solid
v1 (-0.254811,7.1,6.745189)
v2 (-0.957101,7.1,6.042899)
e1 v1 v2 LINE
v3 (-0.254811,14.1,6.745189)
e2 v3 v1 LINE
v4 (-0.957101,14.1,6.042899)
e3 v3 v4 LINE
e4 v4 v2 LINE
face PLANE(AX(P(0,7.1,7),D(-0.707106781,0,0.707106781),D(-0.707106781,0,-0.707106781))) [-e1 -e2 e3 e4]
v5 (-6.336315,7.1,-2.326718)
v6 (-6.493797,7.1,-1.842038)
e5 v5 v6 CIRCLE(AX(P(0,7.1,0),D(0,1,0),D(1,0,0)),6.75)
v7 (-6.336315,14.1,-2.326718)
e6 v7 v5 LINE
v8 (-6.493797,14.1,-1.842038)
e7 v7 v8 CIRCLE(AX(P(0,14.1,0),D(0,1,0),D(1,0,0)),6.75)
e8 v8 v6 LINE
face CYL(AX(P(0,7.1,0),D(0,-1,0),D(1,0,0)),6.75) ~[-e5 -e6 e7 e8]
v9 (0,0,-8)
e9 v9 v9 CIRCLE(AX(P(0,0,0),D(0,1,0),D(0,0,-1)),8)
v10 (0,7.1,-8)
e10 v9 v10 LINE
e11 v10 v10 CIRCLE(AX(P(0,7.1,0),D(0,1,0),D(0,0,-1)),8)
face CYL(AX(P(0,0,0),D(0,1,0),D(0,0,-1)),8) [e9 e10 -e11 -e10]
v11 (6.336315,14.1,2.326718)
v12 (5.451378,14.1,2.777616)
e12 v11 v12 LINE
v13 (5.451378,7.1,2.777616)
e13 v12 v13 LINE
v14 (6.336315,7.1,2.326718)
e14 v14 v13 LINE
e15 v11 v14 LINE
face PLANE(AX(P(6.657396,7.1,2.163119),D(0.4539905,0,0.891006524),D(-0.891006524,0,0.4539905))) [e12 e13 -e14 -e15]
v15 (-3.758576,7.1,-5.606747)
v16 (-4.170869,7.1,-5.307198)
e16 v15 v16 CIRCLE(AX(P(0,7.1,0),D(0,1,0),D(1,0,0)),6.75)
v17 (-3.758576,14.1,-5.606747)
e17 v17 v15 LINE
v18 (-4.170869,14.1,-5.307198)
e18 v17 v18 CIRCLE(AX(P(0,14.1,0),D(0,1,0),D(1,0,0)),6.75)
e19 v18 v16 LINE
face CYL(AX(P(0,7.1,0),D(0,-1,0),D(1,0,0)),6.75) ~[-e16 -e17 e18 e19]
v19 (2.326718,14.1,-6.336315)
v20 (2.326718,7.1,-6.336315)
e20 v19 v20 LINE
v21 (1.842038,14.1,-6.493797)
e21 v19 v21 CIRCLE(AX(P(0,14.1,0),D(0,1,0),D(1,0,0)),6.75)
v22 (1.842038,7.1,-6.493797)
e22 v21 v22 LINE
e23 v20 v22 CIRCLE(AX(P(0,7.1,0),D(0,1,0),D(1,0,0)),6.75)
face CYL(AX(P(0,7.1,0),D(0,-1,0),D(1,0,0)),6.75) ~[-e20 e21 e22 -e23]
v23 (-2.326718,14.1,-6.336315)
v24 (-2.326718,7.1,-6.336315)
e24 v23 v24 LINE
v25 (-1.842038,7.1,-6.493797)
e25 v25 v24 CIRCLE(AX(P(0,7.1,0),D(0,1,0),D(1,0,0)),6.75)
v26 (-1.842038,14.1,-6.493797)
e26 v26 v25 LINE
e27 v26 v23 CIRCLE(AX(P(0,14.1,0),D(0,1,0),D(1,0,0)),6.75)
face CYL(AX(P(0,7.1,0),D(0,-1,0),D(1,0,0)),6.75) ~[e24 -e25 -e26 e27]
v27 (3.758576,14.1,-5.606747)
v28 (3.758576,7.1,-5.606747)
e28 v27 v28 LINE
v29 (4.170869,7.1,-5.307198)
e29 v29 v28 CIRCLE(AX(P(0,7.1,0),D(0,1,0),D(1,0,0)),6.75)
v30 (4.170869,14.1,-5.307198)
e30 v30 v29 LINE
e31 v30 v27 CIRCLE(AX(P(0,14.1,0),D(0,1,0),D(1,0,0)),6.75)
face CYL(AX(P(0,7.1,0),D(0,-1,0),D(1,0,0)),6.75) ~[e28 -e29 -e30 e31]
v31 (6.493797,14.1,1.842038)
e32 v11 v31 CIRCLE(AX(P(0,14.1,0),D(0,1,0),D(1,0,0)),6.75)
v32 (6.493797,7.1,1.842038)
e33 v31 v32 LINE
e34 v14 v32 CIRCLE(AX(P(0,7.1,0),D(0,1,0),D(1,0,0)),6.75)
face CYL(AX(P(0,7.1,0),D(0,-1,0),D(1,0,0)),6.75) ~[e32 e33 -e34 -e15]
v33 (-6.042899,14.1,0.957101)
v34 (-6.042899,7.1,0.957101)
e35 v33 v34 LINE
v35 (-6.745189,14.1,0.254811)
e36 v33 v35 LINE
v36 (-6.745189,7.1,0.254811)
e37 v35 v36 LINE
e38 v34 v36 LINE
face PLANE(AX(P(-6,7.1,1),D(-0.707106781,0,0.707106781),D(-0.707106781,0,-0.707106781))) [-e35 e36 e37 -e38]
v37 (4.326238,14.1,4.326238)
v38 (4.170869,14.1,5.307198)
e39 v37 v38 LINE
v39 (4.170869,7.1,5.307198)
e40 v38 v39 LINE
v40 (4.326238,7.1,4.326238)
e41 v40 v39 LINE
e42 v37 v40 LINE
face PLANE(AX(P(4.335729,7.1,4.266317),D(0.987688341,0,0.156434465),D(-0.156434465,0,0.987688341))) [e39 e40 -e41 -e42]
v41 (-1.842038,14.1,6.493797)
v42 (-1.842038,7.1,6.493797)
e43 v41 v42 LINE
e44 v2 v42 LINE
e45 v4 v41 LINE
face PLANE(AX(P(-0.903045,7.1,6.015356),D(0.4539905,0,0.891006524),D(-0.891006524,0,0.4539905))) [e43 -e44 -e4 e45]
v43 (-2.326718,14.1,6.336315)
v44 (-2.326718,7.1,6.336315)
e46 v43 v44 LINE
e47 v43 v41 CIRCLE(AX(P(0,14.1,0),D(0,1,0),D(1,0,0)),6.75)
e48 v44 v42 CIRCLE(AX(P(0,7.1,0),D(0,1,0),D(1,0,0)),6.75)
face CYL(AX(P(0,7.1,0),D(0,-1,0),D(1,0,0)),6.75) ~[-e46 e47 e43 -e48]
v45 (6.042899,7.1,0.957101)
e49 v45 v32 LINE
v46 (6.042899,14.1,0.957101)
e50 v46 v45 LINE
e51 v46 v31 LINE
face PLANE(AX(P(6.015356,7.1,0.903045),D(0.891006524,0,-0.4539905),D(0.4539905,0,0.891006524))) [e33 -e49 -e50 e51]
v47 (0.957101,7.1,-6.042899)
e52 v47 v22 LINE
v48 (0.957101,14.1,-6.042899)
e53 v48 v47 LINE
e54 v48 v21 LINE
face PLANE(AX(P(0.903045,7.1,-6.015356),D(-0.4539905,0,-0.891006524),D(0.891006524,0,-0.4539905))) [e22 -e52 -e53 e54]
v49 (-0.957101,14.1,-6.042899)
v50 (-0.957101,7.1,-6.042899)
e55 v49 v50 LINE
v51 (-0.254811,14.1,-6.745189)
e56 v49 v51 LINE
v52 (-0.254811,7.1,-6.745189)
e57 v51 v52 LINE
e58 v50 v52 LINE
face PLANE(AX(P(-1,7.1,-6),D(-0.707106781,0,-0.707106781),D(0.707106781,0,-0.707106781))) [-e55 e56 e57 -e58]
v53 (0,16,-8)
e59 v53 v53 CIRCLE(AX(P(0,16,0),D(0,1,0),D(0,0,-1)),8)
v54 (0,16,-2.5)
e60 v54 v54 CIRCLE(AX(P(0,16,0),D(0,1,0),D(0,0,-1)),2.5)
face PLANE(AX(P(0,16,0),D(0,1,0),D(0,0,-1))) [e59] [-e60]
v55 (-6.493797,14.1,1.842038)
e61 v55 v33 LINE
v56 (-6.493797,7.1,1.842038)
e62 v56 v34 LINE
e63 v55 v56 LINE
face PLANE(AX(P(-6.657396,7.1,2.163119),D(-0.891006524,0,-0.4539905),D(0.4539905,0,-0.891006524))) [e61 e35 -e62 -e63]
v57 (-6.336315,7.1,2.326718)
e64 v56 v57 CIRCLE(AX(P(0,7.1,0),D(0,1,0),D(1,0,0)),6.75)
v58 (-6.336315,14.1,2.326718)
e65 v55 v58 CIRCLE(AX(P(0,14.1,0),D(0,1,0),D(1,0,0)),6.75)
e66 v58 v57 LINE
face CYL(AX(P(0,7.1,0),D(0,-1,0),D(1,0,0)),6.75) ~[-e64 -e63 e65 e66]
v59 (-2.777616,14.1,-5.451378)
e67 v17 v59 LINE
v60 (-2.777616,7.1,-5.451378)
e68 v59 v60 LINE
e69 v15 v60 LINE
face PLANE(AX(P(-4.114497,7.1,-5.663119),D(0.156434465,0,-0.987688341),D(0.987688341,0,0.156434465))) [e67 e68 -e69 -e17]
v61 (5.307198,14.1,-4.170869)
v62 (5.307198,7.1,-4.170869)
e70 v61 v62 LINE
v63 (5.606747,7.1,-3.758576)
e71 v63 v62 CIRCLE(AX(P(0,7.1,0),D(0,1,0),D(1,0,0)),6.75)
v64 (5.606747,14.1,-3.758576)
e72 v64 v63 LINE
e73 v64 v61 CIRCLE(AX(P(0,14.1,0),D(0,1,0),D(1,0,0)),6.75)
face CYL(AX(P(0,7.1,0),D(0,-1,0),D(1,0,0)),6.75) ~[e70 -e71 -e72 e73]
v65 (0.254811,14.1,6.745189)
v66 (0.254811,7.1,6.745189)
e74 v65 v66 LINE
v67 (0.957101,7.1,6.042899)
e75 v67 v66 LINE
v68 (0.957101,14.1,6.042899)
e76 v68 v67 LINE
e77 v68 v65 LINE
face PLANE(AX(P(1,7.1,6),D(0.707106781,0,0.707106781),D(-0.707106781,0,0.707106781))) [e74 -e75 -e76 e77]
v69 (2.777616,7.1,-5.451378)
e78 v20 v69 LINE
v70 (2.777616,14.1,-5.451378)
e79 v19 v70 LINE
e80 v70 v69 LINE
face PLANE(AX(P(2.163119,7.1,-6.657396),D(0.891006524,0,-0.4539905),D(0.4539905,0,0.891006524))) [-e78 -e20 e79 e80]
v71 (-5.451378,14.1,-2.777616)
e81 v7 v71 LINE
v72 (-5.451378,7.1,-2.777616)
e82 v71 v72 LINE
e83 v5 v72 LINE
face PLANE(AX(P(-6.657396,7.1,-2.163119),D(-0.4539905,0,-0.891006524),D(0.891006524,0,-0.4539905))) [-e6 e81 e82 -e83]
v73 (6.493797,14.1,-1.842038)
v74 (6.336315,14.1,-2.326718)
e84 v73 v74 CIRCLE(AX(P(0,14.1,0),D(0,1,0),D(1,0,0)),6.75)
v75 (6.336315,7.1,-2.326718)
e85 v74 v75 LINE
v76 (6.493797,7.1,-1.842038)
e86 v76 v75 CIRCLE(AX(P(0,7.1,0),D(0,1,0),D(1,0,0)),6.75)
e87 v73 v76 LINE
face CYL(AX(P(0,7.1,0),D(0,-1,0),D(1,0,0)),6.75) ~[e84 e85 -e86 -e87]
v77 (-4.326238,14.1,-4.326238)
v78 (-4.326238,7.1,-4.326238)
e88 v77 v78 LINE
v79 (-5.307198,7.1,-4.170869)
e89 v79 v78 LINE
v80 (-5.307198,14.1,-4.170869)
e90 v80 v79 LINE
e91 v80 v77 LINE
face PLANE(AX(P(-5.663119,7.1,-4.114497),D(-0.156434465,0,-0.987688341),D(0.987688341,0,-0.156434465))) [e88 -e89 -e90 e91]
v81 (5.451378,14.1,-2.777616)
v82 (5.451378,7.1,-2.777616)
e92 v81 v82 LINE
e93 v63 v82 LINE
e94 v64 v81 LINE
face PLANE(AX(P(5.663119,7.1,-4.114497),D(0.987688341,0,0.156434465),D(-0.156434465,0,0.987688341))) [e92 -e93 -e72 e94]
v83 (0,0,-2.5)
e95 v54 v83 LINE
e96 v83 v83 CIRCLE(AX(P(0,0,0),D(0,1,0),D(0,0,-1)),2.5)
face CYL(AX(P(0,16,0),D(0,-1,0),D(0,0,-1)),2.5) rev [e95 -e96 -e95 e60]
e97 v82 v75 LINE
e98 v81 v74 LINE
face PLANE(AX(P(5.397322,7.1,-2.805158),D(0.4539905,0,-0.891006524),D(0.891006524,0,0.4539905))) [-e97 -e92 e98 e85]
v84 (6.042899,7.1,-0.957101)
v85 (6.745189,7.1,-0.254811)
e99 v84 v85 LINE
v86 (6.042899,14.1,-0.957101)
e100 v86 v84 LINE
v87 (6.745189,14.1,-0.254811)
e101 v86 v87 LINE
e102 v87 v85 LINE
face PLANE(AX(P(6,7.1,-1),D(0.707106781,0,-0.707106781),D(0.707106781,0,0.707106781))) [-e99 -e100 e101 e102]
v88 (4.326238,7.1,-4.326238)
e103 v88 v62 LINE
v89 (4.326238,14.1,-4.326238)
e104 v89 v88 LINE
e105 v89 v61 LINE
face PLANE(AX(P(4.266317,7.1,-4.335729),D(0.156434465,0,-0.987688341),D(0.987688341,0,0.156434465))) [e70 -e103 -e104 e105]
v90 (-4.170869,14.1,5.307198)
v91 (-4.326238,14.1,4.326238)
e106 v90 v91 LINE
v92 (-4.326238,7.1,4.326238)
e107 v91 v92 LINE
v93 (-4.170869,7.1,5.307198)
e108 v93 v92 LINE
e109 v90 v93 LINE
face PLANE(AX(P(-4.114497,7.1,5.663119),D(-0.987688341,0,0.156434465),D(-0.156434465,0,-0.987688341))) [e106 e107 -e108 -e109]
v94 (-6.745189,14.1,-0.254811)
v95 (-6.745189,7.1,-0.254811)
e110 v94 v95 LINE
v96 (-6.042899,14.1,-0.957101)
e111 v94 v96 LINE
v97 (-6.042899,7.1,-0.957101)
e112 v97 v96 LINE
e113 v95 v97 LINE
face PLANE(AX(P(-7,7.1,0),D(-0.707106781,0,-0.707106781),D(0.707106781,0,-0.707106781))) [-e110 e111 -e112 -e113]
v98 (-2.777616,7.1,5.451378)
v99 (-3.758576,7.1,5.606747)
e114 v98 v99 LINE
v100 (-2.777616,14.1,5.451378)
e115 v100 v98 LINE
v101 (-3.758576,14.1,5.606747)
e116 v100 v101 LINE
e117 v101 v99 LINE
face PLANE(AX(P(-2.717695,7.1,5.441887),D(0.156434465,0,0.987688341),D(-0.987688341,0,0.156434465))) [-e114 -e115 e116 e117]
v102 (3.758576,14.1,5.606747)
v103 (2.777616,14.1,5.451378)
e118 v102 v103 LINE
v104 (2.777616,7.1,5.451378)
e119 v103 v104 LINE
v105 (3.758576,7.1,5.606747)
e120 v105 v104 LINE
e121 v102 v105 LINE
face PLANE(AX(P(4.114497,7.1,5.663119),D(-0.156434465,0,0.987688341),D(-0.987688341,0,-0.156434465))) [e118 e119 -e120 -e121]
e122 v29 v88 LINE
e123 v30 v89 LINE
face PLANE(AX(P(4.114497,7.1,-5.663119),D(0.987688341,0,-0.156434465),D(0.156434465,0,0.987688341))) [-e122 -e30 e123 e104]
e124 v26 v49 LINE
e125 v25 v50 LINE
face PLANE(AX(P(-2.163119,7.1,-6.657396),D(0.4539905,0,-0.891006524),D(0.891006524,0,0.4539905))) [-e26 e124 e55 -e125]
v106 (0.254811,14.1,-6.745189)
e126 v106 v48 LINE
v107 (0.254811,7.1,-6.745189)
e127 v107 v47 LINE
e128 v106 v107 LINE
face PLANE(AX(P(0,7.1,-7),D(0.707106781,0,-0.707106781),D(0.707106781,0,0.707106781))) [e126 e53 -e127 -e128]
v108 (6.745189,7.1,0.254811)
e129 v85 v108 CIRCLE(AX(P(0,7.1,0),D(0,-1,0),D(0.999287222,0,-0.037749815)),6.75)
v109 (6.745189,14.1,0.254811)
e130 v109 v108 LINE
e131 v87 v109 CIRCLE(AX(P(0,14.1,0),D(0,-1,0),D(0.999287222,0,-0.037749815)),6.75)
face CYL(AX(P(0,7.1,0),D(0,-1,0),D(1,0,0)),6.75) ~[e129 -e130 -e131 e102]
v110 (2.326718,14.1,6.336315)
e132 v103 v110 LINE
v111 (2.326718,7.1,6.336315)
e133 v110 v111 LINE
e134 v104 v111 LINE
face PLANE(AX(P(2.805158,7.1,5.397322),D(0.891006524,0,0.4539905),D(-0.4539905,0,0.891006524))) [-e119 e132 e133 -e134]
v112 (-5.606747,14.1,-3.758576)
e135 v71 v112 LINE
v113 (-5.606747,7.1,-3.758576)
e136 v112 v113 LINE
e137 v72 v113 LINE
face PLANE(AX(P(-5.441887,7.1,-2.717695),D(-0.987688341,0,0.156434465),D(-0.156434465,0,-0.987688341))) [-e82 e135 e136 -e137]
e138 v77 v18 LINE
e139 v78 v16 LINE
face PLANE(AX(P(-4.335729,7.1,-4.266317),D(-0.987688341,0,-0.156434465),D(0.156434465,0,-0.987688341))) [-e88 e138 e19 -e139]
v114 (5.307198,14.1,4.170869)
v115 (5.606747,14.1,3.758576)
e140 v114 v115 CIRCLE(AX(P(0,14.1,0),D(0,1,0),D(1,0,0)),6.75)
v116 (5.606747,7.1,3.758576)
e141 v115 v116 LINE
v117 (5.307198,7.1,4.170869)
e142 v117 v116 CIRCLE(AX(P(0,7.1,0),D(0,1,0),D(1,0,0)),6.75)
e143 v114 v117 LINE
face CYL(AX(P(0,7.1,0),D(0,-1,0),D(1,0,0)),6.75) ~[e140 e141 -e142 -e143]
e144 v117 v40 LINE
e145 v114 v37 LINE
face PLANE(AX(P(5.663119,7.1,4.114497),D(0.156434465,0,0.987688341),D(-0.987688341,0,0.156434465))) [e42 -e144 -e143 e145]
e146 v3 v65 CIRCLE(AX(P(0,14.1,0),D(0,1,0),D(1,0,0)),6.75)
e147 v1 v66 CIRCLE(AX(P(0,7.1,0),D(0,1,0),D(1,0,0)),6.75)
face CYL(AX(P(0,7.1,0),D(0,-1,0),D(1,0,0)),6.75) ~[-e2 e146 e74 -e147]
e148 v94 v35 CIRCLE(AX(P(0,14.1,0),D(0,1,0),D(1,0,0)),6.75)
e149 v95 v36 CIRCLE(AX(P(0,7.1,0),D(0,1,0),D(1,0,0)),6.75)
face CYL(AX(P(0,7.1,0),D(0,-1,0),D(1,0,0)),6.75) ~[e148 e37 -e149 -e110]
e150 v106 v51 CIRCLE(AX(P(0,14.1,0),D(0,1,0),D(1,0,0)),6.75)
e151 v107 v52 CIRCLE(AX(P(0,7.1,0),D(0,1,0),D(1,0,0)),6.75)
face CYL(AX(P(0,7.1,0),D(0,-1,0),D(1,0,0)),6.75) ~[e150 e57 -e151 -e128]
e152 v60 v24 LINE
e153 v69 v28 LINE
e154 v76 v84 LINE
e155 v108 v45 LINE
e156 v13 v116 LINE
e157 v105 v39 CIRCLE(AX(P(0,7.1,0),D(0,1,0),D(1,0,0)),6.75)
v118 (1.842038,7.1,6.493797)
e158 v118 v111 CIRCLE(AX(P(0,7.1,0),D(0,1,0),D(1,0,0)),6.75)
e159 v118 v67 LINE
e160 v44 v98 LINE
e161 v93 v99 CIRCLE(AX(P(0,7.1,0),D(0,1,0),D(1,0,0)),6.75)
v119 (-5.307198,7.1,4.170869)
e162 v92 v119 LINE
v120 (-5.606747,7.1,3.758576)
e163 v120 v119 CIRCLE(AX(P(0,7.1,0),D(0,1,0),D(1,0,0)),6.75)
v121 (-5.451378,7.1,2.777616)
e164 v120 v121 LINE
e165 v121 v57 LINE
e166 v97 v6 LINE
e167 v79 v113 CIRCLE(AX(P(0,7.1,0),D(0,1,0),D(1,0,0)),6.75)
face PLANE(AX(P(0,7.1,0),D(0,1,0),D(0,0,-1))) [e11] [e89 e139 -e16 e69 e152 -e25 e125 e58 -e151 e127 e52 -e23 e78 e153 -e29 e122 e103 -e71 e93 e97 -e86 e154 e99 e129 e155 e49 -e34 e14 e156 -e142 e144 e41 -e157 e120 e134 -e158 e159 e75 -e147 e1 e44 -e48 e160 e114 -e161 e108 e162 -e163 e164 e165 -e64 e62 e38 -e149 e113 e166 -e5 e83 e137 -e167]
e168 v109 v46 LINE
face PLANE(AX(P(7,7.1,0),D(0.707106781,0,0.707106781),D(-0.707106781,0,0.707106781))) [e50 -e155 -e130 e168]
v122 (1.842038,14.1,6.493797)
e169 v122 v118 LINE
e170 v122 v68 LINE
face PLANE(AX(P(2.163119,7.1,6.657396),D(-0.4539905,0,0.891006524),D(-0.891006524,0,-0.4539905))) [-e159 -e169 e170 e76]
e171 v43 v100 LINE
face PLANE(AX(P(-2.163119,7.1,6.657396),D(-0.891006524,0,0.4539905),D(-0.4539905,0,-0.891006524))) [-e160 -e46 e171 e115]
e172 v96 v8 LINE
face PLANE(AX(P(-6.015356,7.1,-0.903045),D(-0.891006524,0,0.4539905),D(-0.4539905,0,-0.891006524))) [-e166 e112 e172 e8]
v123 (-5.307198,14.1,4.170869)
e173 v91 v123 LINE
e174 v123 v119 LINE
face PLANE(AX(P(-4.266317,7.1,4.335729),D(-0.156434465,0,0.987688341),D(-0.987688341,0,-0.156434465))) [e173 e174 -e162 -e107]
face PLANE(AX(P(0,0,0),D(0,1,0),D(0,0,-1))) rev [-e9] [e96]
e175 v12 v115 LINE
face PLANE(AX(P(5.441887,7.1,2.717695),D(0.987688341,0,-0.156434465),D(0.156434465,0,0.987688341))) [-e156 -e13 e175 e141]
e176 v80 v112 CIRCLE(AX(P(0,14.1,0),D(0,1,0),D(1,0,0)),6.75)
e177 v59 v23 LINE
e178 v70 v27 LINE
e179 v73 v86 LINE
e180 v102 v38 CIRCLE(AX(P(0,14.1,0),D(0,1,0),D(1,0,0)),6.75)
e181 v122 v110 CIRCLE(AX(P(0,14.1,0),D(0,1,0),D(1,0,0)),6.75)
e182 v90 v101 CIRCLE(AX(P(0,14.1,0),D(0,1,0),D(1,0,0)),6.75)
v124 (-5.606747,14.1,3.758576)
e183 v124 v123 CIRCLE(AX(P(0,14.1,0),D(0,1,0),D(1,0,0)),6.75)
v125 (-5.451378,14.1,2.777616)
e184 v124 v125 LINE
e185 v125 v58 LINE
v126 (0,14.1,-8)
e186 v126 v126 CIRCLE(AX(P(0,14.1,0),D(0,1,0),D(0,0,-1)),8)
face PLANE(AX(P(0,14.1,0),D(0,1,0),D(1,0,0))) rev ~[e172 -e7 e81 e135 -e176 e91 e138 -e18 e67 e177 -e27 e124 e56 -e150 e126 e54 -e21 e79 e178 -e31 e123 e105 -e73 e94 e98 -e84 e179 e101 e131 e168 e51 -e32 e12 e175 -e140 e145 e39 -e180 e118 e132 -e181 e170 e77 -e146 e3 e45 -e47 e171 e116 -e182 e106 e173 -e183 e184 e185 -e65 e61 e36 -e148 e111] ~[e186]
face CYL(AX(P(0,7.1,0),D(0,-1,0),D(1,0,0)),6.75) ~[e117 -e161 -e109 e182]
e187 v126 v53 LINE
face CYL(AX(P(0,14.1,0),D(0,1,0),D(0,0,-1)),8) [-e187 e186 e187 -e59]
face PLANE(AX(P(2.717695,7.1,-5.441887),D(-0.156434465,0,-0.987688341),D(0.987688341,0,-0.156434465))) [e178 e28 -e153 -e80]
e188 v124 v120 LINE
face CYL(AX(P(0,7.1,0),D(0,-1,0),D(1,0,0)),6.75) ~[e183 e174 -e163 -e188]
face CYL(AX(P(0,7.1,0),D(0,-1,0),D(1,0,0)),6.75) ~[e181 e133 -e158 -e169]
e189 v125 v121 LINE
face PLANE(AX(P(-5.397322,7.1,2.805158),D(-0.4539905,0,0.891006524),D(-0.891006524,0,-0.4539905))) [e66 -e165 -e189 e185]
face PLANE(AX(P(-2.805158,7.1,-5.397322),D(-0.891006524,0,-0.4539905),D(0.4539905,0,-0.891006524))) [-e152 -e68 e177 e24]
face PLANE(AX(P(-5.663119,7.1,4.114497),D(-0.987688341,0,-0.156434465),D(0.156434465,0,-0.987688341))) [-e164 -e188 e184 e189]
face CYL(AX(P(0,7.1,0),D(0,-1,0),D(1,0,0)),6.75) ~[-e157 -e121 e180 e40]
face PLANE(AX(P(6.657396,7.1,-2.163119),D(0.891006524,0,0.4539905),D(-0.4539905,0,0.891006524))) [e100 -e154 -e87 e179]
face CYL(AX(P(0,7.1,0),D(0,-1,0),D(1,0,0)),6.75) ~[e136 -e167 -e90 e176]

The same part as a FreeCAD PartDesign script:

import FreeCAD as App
import Part
import Sketcher

V = App.Vector


def add_polygon(sketch, points):
    """Adds a closed chain of lines whose ends are joined by coincident constraints."""
    first, n = sketch.GeometryCount, len(points)
    for a, b in zip(points, points[1:] + points[:1]):
        sketch.addGeometry(Part.LineSegment(App.Vector(*a, 0), App.Vector(*b, 0)), False)
    for i in range(n):
        sketch.addConstraint(Sketcher.Constraint("Coincident", first + i, 2, first + (i + 1) % n, 1))

doc = App.newDocument("Part")
body = doc.addObject("PartDesign::Body", "Body")

# Sketch on XY plane
sketch1 = body.newObject("Sketcher::SketchObject", "Sketch")
sketch1.AttachmentSupport = (doc.getObject("XY_Plane"), [""])
sketch1.MapMode = "FlatFace"
add_polygon(sketch1, [(-8, 0), (-2.5, 0), (-2.5, 16), (-8, 16), (-8, 14.1), (-6.1, 14.1), (-6.1, 7.1), (-8, 7.1)])  # lines 0-7
sketch1.addConstraint(Sketcher.Constraint("Horizontal", 0))
sketch1.addConstraint(Sketcher.Constraint("Vertical", 1))
sketch1.addConstraint(Sketcher.Constraint("Horizontal", 2))
sketch1.addConstraint(Sketcher.Constraint("Vertical", 3))
sketch1.addConstraint(Sketcher.Constraint("Horizontal", 4))
sketch1.addConstraint(Sketcher.Constraint("Vertical", 5))
sketch1.addConstraint(Sketcher.Constraint("Horizontal", 6))
sketch1.addConstraint(Sketcher.Constraint("Vertical", 7))
sketch1.addConstraint(Sketcher.Constraint("PointOnObject", 0, 2, -1))
sketch1.addConstraint(Sketcher.Constraint("Vertical", 3, 2, 6, 2))
sketch1.addConstraint(Sketcher.Constraint("DistanceY", 1, 1, 1, 2, 16.0))
sketch1.addConstraint(Sketcher.Constraint("DistanceY", 5, 2, 5, 1, 7.0))
sketch1.addConstraint(Sketcher.Constraint("DistanceX", 0, 1, 0, 2, 5.5))
sketch1.addConstraint(Sketcher.Constraint("DistanceY", 3, 2, 3, 1, 1.9))
sketch1.addConstraint(Sketcher.Constraint("DistanceX", 2, 2, -1, 1, 8.0))
sketch1.addConstraint(Sketcher.Constraint("DistanceX", 4, 1, 4, 2, 1.89))
revolution = body.newObject("PartDesign::Revolution", "Revolution")
revolution.Profile = sketch1
revolution.ReferenceAxis = (sketch1, ["V_Axis"])
revolution.Angle = 360

# Sketch on XZ plane
sketch2 = body.newObject("Sketcher::SketchObject", "Sketch001")
sketch2.AttachmentSupport = (doc.getObject("XZ_Plane"), [""])
sketch2.MapMode = "FlatFace"
sketch2.AttachmentOffset = App.Placement(V(0, 0, -7.1), App.Rotation())
add_polygon(sketch2, [(-6, 1), (-6, -1), (-7, 0)])  # lines 0-2
sketch2.addConstraint(Sketcher.Constraint("Vertical", 0))
sketch2.addConstraint(Sketcher.Constraint("PointOnObject", 1, 2, -1))
sketch2.addConstraint(Sketcher.Constraint("Perpendicular", 1, 2))
sketch2.addConstraint(Sketcher.Constraint("Equal", 1, 2))
sketch2.addConstraint(Sketcher.Constraint("DistanceY", 0, 2, 0, 1, 2.0))
sketch2.addConstraint(Sketcher.Constraint("DistanceX", 0, 2, -1, 1, 6.0))
pad1 = body.newObject("PartDesign::Pad", "Pad")
pad1.Profile = sketch2
pad1.Length = 7
pad1.Reversed = True
doc.recompute()

polarpattern = body.newObject("PartDesign::PolarPattern", "PolarPattern")
polarpattern.Originals = [pad1]
polarpattern.Axis = (doc.getObject("Y_Axis"), [""])
polarpattern.Angle = 360
polarpattern.Occurrences = 20
body.Tip = polarpattern

# Sketch on XZ plane
sketch3 = body.newObject("Sketcher::SketchObject", "Sketch002")
sketch3.AttachmentSupport = (doc.getObject("XZ_Plane"), [""])
sketch3.MapMode = "FlatFace"
sketch3.AttachmentOffset = App.Placement(V(0, 0, -7.1), App.Rotation())
sketch3.addGeometry(Part.Circle(V(0, 0, 0), V(0, 0, 1), 8), False)
sketch3.addGeometry(Part.Circle(V(0, 0, 0), V(0, 0, 1), 7), False)
sketch3.addConstraint(Sketcher.Constraint("Coincident", 0, 3, -1, 1))
sketch3.addConstraint(Sketcher.Constraint("Coincident", 1, 3, -1, 1))
sketch3.addConstraint(Sketcher.Constraint("Diameter", 0, 15.0))
sketch3.addConstraint(Sketcher.Constraint("Diameter", 1, 13.5))
pocket1 = body.newObject("PartDesign::Pocket", "Pocket")
pocket1.Profile = sketch3
pocket1.Length = 7

doc.recompute()
